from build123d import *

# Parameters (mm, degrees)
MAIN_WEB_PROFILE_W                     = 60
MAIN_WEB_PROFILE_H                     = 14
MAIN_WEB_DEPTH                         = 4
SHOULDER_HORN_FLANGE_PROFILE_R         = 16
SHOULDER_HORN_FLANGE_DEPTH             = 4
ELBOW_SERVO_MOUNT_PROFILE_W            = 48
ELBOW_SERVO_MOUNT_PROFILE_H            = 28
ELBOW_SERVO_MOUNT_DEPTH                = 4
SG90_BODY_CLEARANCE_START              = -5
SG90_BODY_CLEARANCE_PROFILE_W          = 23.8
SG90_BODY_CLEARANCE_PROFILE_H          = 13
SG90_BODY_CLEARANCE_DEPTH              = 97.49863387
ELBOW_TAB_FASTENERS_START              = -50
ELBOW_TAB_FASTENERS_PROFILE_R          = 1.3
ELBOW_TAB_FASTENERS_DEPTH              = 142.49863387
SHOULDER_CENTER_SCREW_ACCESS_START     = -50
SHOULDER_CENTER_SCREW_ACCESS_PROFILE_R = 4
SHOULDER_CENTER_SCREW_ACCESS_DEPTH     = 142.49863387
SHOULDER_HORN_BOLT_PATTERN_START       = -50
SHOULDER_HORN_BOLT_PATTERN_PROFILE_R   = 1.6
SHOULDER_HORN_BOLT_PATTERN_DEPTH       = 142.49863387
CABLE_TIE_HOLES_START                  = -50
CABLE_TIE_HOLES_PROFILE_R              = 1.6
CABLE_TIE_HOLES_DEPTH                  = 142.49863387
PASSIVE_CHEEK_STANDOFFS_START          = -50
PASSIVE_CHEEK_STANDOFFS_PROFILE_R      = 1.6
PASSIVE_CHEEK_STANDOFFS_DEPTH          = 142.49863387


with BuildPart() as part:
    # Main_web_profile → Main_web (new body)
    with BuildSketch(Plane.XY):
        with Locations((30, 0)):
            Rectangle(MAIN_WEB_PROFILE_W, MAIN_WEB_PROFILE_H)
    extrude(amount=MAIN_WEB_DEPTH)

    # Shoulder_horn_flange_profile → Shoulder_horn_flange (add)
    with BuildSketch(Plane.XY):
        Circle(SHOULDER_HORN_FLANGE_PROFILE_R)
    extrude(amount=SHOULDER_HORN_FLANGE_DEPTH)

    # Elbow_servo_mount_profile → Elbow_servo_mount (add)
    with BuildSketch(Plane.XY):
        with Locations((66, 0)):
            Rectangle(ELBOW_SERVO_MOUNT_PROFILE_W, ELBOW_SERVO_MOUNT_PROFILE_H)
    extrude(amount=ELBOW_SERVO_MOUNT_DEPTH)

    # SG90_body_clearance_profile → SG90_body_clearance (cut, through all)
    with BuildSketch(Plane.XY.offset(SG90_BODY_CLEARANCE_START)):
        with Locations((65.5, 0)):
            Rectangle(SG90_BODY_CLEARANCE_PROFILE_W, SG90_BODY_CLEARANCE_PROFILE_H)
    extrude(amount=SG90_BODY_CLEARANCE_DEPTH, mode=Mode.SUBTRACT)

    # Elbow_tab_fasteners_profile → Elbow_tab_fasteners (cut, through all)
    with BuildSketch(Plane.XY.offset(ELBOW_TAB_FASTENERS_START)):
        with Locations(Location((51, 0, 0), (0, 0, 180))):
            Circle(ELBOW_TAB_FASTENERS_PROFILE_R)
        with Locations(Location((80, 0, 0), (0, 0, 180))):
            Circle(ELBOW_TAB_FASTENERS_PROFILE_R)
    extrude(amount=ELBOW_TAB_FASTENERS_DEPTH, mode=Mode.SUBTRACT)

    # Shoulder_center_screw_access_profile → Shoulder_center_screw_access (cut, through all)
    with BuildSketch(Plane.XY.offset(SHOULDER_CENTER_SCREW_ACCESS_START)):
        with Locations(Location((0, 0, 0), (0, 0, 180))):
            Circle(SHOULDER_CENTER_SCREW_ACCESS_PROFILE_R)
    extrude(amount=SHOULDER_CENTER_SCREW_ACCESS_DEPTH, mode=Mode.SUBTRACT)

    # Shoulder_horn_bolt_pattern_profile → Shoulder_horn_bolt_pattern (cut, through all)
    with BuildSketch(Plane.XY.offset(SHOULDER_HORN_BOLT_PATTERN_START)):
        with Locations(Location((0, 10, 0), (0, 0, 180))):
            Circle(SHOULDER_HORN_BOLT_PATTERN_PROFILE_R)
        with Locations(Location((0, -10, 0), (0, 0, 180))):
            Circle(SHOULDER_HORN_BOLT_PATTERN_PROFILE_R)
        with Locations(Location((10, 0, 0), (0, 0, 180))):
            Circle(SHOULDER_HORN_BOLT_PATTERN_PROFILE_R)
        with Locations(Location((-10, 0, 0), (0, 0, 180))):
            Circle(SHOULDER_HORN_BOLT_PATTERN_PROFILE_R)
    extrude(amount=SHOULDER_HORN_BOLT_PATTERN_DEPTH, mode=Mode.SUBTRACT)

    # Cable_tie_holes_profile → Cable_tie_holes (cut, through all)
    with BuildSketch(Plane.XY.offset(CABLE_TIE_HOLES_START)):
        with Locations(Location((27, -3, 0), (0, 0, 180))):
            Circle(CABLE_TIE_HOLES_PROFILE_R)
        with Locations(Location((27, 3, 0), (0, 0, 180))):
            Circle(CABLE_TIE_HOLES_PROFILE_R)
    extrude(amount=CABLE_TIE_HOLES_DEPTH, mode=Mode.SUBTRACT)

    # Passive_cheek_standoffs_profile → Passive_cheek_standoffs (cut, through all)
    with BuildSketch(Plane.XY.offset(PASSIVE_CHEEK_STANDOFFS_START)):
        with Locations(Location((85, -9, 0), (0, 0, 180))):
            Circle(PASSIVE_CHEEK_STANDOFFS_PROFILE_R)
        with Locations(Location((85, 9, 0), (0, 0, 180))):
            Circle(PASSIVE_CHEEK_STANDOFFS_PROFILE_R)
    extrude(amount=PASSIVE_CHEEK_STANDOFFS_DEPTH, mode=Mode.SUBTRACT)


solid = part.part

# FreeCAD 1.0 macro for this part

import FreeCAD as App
import Part
import Sketcher

V = App.Vector

doc = App.newDocument("Part")
body = doc.addObject("PartDesign::Body", "Body")

sketch1 = doc.addObject("Sketcher::SketchObject", "Sketch")
body.addObject(sketch1)
sketch1.AttachmentSupport = (doc.XY_Plane, [""])
sketch1.MapMode = "FlatFace"
sketch1.addGeometry(Part.LineSegment(V(0, 7, 0), V(0, -7, 0)), False)
sketch1.addGeometry(Part.LineSegment(V(0, -7, 0), V(60, -7, 0)), False)
sketch1.addGeometry(Part.LineSegment(V(60, -7, 0), V(60, 7, 0)), False)
sketch1.addGeometry(Part.LineSegment(V(60, 7, 0), V(0, 7, 0)), False)
sketch1.addConstraint(Sketcher.Constraint("Coincident", 0, 2, 1, 1))
sketch1.addConstraint(Sketcher.Constraint("Coincident", 1, 2, 2, 1))
sketch1.addConstraint(Sketcher.Constraint("Coincident", 2, 2, 3, 1))
sketch1.addConstraint(Sketcher.Constraint("Coincident", 3, 2, 0, 1))
sketch1.addConstraint(Sketcher.Constraint("Vertical", 0))
sketch1.addConstraint(Sketcher.Constraint("Horizontal", 1))
sketch1.addConstraint(Sketcher.Constraint("Vertical", 2))
sketch1.addConstraint(Sketcher.Constraint("Horizontal", 3))
sketch1.addConstraint(Sketcher.Constraint("Symmetric", 0, 2, 3, 2, -1, 1))
sketch1.addConstraint(Sketcher.Constraint("DistanceX", 1, 1, 1, 2, 60.0))
sketch1.addConstraint(Sketcher.Constraint("DistanceY", 0, 2, 0, 1, 14.0))
pad1 = doc.addObject("PartDesign::Pad", "Pad")
body.addObject(pad1)
pad1.Profile = sketch1
pad1.Length = 4

sketch2 = doc.addObject("Sketcher::SketchObject", "Sketch001")
body.addObject(sketch2)
sketch2.AttachmentSupport = (doc.XY_Plane, [""])
sketch2.MapMode = "FlatFace"
sketch2.addGeometry(Part.Circle(V(0, 0, 0), V(0, 0, 1), 16), False)
sketch2.addConstraint(Sketcher.Constraint("Coincident", 0, 3, -1, 1))
sketch2.addConstraint(Sketcher.Constraint("Diameter", 0, 32.0))
pad2 = doc.addObject("PartDesign::Pad", "Pad001")
body.addObject(pad2)
pad2.Profile = sketch2
pad2.Length = 4

sketch3 = doc.addObject("Sketcher::SketchObject", "Sketch002")
body.addObject(sketch3)
sketch3.AttachmentSupport = (doc.XY_Plane, [""])
sketch3.MapMode = "FlatFace"
sketch3.addGeometry(Part.LineSegment(V(42, 14, 0), V(42, -14, 0)), False)
sketch3.addGeometry(Part.LineSegment(V(42, -14, 0), V(90, -14, 0)), False)
sketch3.addGeometry(Part.LineSegment(V(90, -14, 0), V(90, 14, 0)), False)
sketch3.addGeometry(Part.LineSegment(V(90, 14, 0), V(42, 14, 0)), False)
sketch3.addConstraint(Sketcher.Constraint("Coincident", 0, 2, 1, 1))
sketch3.addConstraint(Sketcher.Constraint("Coincident", 1, 2, 2, 1))
sketch3.addConstraint(Sketcher.Constraint("Coincident", 2, 2, 3, 1))
sketch3.addConstraint(Sketcher.Constraint("Coincident", 3, 2, 0, 1))
sketch3.addConstraint(Sketcher.Constraint("Vertical", 0))
sketch3.addConstraint(Sketcher.Constraint("Horizontal", 1))
sketch3.addConstraint(Sketcher.Constraint("Vertical", 2))
sketch3.addConstraint(Sketcher.Constraint("Horizontal", 3))
sketch3.addConstraint(Sketcher.Constraint("DistanceX", 1, 1, 1, 2, 48.0))
sketch3.addConstraint(Sketcher.Constraint("DistanceY", 0, 2, 0, 1, 28.0))
sketch3.addConstraint(Sketcher.Constraint("DistanceX", -1, 1, 0, 2, 42.0))
sketch3.addConstraint(Sketcher.Constraint("DistanceY", 0, 2, -1, 1, 14.0))
pad3 = doc.addObject("PartDesign::Pad", "Pad002")
body.addObject(pad3)
pad3.Profile = sketch3
pad3.Length = 4

sketch4 = doc.addObject("Sketcher::SketchObject", "Sketch003")
body.addObject(sketch4)
sketch4.AttachmentSupport = (doc.XY_Plane, [""])
sketch4.MapMode = "FlatFace"
sketch4.AttachmentOffset = App.Placement(V(0, 0, -5), App.Rotation())
sketch4.addGeometry(Part.LineSegment(V(53.6, 6.5, 0), V(53.6, -6.5, 0)), False)
sketch4.addGeometry(Part.LineSegment(V(53.6, -6.5, 0), V(77.4, -6.5, 0)), False)
sketch4.addGeometry(Part.LineSegment(V(77.4, -6.5, 0), V(77.4, 6.5, 0)), False)
sketch4.addGeometry(Part.LineSegment(V(77.4, 6.5, 0), V(53.6, 6.5, 0)), False)
sketch4.addConstraint(Sketcher.Constraint("Coincident", 0, 2, 1, 1))
sketch4.addConstraint(Sketcher.Constraint("Coincident", 1, 2, 2, 1))
sketch4.addConstraint(Sketcher.Constraint("Coincident", 2, 2, 3, 1))
sketch4.addConstraint(Sketcher.Constraint("Coincident", 3, 2, 0, 1))
sketch4.addConstraint(Sketcher.Constraint("Vertical", 0))
sketch4.addConstraint(Sketcher.Constraint("Horizontal", 1))
sketch4.addConstraint(Sketcher.Constraint("Vertical", 2))
sketch4.addConstraint(Sketcher.Constraint("Horizontal", 3))
sketch4.addConstraint(Sketcher.Constraint("DistanceY", 0, 2, 0, 1, 13.0))
sketch4.addConstraint(Sketcher.Constraint("DistanceX", 1, 1, 1, 2, 23.8))
sketch4.addConstraint(Sketcher.Constraint("DistanceX", -1, 1, 0, 2, 53.6))
sketch4.addConstraint(Sketcher.Constraint("DistanceY", 0, 2, -1, 1, 6.5))
pocket1 = doc.addObject("PartDesign::Pocket", "Pocket")
body.addObject(pocket1)
pocket1.Profile = sketch4
pocket1.Type = "ThroughAll"
pocket1.Reversed = True

sketch5 = doc.addObject("Sketcher::SketchObject", "Sketch004")
body.addObject(sketch5)
sketch5.AttachmentSupport = (doc.XY_Plane, [""])
sketch5.MapMode = "FlatFace"
sketch5.AttachmentOffset = App.Placement(V(0, 0, -50), App.Rotation())
sketch5.addGeometry(Part.Circle(V(51, 0, 0), V(0, 0, 1), 1.3), False)
sketch5.addGeometry(Part.Circle(V(80, 0, 0), V(0, 0, 1), 1.3), False)
sketch5.addConstraint(Sketcher.Constraint("Equal", 0, 1))
sketch5.addConstraint(Sketcher.Constraint("PointOnObject", 0, 3, -1))
sketch5.addConstraint(Sketcher.Constraint("PointOnObject", 1, 3, -1))
sketch5.addConstraint(Sketcher.Constraint("Diameter", 0, 2.6))
sketch5.addConstraint(Sketcher.Constraint("DistanceX", -1, 1, 0, 3, 51.0))
sketch5.addConstraint(Sketcher.Constraint("DistanceX", -1, 1, 1, 3, 80.0))
pocket2 = doc.addObject("PartDesign::Pocket", "Pocket001")
body.addObject(pocket2)
pocket2.Profile = sketch5
pocket2.Type = "ThroughAll"
pocket2.Reversed = True

sketch6 = doc.addObject("Sketcher::SketchObject", "Sketch005")
body.addObject(sketch6)
sketch6.AttachmentSupport = (doc.XY_Plane, [""])
sketch6.MapMode = "FlatFace"
sketch6.AttachmentOffset = App.Placement(V(0, 0, -50), App.Rotation())
sketch6.addGeometry(Part.Circle(V(0, 0, 0), V(0, 0, 1), 4), False)
sketch6.addConstraint(Sketcher.Constraint("Coincident", 0, 3, -1, 1))
sketch6.addConstraint(Sketcher.Constraint("Diameter", 0, 8.0))
pocket3 = doc.addObject("PartDesign::Pocket", "Pocket002")
body.addObject(pocket3)
pocket3.Profile = sketch6
pocket3.Type = "ThroughAll"
pocket3.Reversed = True

sketch7 = doc.addObject("Sketcher::SketchObject", "Sketch006")
body.addObject(sketch7)
sketch7.AttachmentSupport = (doc.XY_Plane, [""])
sketch7.MapMode = "FlatFace"
sketch7.AttachmentOffset = App.Placement(V(0, 0, -50), App.Rotation())
sketch7.addGeometry(Part.Circle(V(0, 10, 0), V(0, 0, 1), 1.6), False)
sketch7.addGeometry(Part.Circle(V(0, -10, 0), V(0, 0, 1), 1.6), False)
sketch7.addGeometry(Part.Circle(V(10, 0, 0), V(0, 0, 1), 1.6), False)
sketch7.addGeometry(Part.Circle(V(-10, 0, 0), V(0, 0, 1), 1.6), False)
sketch7.addConstraint(Sketcher.Constraint("Equal", 0, 1))
sketch7.addConstraint(Sketcher.Constraint("Equal", 1, 2))
sketch7.addConstraint(Sketcher.Constraint("Equal", 2, 3))
sketch7.addConstraint(Sketcher.Constraint("Symmetric", 0, 3, 1, 3, -1, 1))
sketch7.addConstraint(Sketcher.Constraint("Symmetric", 2, 3, 3, 3, -1, 1))
sketch7.addConstraint(Sketcher.Constraint("PointOnObject", 0, 3, -2))
sketch7.addConstraint(Sketcher.Constraint("PointOnObject", 2, 3, -1))
sketch7.addConstraint(Sketcher.Constraint("Diameter", 0, 3.2))
sketch7.addConstraint(Sketcher.Constraint("DistanceY", -1, 1, 0, 3, 10.0))
sketch7.addConstraint(Sketcher.Constraint("DistanceX", -1, 1, 2, 3, 10.0))
pocket4 = doc.addObject("PartDesign::Pocket", "Pocket003")
body.addObject(pocket4)
pocket4.Profile = sketch7
pocket4.Type = "ThroughAll"
pocket4.Reversed = True

sketch8 = doc.addObject("Sketcher::SketchObject", "Sketch007")
body.addObject(sketch8)
sketch8.AttachmentSupport = (doc.XY_Plane, [""])
sketch8.MapMode = "FlatFace"
sketch8.AttachmentOffset = App.Placement(V(0, 0, -50), App.Rotation())
sketch8.addGeometry(Part.Circle(V(27, -3, 0), V(0, 0, 1), 1.6), False)
sketch8.addGeometry(Part.Circle(V(27, 3, 0), V(0, 0, 1), 1.6), False)
sketch8.addConstraint(Sketcher.Constraint("Equal", 0, 1))
sketch8.addConstraint(Sketcher.Constraint("Symmetric", 0, 3, 1, 3, -1))
sketch8.addConstraint(Sketcher.Constraint("Diameter", 0, 3.2))
sketch8.addConstraint(Sketcher.Constraint("DistanceX", -1, 1, 0, 3, 27.0))
sketch8.addConstraint(Sketcher.Constraint("DistanceY", 0, 3, -1, 1, 3.0))
pocket5 = doc.addObject("PartDesign::Pocket", "Pocket004")
body.addObject(pocket5)
pocket5.Profile = sketch8
pocket5.Type = "ThroughAll"
pocket5.Reversed = True

sketch9 = doc.addObject("Sketcher::SketchObject", "Sketch008")
body.addObject(sketch9)
sketch9.AttachmentSupport = (doc.XY_Plane, [""])
sketch9.MapMode = "FlatFace"
sketch9.AttachmentOffset = App.Placement(V(0, 0, -50), App.Rotation())
sketch9.addGeometry(Part.Circle(V(85, -9, 0), V(0, 0, 1), 1.6), False)
sketch9.addGeometry(Part.Circle(V(85, 9, 0), V(0, 0, 1), 1.6), False)
sketch9.addConstraint(Sketcher.Constraint("Equal", 0, 1))
sketch9.addConstraint(Sketcher.Constraint("Symmetric", 0, 3, 1, 3, -1))
sketch9.addConstraint(Sketcher.Constraint("Diameter", 0, 3.2))
sketch9.addConstraint(Sketcher.Constraint("DistanceX", -1, 1, 0, 3, 85.0))
sketch9.addConstraint(Sketcher.Constraint("DistanceY", 0, 3, -1, 1, 9.0))
pocket6 = doc.addObject("PartDesign::Pocket", "Pocket005")
body.addObject(pocket6)
pocket6.Profile = sketch9
pocket6.Type = "ThroughAll"
pocket6.Reversed = True

doc.recompute()
